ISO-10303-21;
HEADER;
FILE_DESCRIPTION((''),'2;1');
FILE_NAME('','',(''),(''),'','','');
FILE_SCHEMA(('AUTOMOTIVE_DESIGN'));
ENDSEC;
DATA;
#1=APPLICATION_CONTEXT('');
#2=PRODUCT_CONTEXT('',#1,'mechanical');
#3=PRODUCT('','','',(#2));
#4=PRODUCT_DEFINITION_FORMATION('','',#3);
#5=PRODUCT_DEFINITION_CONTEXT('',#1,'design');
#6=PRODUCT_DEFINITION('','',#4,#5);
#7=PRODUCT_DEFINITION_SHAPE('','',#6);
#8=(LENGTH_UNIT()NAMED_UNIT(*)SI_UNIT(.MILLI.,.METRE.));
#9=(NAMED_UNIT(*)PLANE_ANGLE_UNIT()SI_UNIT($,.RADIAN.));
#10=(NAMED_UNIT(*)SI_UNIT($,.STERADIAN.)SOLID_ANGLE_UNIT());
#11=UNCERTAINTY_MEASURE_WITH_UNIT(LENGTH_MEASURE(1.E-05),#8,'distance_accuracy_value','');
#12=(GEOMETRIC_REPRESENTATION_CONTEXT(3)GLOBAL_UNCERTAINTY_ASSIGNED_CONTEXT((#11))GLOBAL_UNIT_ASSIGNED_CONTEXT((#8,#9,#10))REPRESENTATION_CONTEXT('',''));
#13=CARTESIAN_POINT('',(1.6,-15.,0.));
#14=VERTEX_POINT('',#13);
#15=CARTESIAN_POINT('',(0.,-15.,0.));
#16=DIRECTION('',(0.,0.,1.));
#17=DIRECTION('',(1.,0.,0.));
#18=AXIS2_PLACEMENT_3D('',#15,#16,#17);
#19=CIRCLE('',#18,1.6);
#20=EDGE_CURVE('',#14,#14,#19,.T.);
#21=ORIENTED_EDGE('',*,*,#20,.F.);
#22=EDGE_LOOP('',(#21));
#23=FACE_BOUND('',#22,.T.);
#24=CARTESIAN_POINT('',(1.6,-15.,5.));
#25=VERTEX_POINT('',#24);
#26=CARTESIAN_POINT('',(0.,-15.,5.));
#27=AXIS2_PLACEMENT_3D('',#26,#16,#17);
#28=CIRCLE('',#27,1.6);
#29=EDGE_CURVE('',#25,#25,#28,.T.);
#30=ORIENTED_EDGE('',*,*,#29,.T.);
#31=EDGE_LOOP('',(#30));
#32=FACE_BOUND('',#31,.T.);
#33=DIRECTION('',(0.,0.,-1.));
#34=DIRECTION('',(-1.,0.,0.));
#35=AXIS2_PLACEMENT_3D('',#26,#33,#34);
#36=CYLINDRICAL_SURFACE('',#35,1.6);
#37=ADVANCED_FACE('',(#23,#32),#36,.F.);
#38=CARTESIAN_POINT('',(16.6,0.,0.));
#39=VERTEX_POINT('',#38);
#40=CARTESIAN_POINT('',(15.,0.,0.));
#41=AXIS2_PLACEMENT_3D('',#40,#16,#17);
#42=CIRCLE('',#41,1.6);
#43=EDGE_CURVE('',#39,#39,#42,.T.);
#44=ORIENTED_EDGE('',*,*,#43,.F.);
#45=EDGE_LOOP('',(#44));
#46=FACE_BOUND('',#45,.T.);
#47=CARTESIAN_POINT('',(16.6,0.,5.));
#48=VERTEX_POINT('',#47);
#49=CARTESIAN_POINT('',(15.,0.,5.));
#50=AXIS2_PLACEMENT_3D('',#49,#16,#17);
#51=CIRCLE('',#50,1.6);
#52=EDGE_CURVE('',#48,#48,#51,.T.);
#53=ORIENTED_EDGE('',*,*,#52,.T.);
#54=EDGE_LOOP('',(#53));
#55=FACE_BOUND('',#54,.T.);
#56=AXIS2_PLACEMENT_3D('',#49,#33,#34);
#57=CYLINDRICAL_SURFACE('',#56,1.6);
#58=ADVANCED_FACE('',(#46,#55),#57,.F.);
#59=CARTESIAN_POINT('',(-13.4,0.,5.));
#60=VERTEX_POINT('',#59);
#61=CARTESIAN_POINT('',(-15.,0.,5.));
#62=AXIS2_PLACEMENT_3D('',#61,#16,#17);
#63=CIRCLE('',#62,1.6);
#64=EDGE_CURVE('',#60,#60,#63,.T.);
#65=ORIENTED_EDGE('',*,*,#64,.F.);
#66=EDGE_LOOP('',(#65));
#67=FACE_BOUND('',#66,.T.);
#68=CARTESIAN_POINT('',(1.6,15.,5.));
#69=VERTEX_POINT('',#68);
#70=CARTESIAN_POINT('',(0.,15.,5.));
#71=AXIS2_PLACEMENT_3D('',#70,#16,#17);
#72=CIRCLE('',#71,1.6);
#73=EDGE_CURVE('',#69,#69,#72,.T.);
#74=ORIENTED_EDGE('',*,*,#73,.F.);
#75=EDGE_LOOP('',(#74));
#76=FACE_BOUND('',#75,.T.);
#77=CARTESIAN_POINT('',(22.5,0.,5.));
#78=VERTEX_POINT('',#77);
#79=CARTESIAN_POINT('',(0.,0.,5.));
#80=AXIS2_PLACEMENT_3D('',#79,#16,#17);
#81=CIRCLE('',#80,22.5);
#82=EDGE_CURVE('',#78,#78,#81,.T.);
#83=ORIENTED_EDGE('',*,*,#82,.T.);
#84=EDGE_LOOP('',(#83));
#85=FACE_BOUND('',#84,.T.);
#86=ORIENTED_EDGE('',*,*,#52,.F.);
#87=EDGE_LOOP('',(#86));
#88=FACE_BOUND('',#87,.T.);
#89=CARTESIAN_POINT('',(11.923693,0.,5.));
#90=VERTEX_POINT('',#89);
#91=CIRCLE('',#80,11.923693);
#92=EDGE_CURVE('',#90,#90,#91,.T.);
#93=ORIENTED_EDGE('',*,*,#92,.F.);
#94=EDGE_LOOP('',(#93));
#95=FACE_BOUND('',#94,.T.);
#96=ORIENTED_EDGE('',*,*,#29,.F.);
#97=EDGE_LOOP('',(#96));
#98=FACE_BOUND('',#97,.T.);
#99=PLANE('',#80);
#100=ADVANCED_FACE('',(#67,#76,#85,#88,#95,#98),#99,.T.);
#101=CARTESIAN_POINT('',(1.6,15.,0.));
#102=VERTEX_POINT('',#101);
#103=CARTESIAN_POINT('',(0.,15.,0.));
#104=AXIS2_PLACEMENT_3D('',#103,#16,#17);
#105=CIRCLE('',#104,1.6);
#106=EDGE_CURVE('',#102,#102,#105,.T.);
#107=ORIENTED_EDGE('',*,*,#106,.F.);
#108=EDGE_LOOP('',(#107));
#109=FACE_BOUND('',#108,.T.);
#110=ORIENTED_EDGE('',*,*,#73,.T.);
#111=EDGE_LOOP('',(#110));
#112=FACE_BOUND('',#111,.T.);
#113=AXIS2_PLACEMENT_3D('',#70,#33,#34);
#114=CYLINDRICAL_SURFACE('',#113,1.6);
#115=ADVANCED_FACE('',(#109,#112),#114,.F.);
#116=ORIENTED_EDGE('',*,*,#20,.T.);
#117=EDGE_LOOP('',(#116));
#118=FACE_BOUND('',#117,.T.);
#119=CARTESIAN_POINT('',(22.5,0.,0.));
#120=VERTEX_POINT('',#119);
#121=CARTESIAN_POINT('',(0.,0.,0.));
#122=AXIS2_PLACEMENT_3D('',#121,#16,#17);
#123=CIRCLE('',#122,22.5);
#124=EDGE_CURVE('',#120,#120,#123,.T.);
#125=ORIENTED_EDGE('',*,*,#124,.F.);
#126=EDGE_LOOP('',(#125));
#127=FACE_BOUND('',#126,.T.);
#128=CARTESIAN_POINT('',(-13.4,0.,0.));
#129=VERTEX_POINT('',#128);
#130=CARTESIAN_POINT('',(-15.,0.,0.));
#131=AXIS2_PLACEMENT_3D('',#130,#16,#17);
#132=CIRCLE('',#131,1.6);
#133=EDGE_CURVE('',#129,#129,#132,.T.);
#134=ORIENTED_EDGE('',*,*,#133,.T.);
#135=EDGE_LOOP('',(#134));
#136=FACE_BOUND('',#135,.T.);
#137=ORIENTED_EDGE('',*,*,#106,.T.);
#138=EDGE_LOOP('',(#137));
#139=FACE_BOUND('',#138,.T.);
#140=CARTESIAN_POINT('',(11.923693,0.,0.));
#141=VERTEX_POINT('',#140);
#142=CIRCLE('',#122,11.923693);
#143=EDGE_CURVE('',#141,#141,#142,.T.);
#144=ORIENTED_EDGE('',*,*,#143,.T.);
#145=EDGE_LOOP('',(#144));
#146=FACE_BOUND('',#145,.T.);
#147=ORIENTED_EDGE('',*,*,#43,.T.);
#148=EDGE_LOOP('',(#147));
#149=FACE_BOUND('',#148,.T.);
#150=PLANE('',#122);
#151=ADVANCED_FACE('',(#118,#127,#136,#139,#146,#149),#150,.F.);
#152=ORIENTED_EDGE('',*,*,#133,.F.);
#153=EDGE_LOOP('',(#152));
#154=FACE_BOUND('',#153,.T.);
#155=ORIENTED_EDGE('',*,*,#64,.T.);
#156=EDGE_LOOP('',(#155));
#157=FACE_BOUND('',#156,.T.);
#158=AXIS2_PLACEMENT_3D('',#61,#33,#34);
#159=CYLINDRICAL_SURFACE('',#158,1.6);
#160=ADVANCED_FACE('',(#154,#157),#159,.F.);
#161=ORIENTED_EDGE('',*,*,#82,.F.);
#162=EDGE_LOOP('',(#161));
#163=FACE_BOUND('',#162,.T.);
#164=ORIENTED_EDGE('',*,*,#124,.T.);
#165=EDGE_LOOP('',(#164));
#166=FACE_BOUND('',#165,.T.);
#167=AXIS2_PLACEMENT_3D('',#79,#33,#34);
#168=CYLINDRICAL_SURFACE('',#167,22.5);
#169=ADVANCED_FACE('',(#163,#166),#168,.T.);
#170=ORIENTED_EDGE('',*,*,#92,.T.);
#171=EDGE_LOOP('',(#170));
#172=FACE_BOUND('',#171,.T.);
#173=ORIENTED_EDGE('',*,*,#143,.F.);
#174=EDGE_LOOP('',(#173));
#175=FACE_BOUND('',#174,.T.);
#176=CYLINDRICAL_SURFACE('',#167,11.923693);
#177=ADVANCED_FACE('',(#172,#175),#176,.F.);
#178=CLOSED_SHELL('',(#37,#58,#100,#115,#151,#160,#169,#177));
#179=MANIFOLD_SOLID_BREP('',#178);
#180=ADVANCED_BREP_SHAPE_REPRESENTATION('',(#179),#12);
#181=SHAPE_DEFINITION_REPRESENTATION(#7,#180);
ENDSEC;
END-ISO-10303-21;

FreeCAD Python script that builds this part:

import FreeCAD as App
import Part
import Sketcher

V = App.Vector
Q = App.Units.Quantity

doc = App.newDocument("Part")
params = doc.addObject("Spreadsheet::Sheet", "Params")
for row, (alias, value) in enumerate([
    ("sketch1_diameter", "45 mm"),
    ("sketch1_diameter2", "3.2 mm"),
    ("pad1_length", "5 mm"),
], start=1):
    params.set(f"A{row}", alias)
    params.set(f"B{row}", "=" + value)
    params.setAlias(f"B{row}", alias)

body = doc.addObject("PartDesign::Body", "Body")

# Sketch on XY plane
sketch1 = body.newObject("Sketcher::SketchObject", "Sketch")
sketch1.AttachmentSupport = (doc.getObject("XY_Plane"), [""])
sketch1.MapMode = "FlatFace"
sketch1.addGeometry([
    Part.Circle(V(0, 0, 0), V(0, 0, 1), 22.5),  # 0
    Part.Circle(V(0, -15, 0), V(0, 0, 1), 1.6),  # 1
    Part.Circle(V(-15, 0, 0), V(0, 0, 1), 1.6),  # 2
    Part.Circle(V(0, 15, 0), V(0, 0, 1), 1.6),  # 3
    Part.Circle(V(0, 0, 0), V(0, 0, 1), 11.923693),  # 4
    Part.Circle(V(15, 0, 0), V(0, 0, 1), 1.6),  # 5
], False)
sketch1.addConstraint([
    Sketcher.Constraint("Coincident", 0, 3, -1, 1),
    Sketcher.Constraint("Coincident", 4, 3, -1, 1),
    Sketcher.Constraint("Equal", 1, 2),
    Sketcher.Constraint("Equal", 2, 3),
    Sketcher.Constraint("Equal", 3, 5),
    Sketcher.Constraint("Symmetric", 1, 3, 3, 3, -1, 1),
    Sketcher.Constraint("Symmetric", 2, 3, 5, 3, -1, 1),
    Sketcher.Constraint("PointOnObject", 1, 3, -2),
    Sketcher.Constraint("PointOnObject", 2, 3, -1),
    Sketcher.Constraint("Diameter", 0, Q("45 mm")),
    Sketcher.Constraint("Diameter", 1, Q("3.2 mm")),
    Sketcher.Constraint("DistanceY", 1, 3, -1, 1, Q("15 mm")),
    Sketcher.Constraint("DistanceX", 2, 3, -1, 1, Q("15 mm")),
    Sketcher.Constraint("Diameter", 4, Q("23.847385 mm")),
])
sketch1.setExpression("Constraints[9]", "Params.sketch1_diameter")
sketch1.setExpression("Constraints[10]", "Params.sketch1_diameter2")
pad1 = body.newObject("PartDesign::Pad", "Pad")
pad1.Profile = sketch1
pad1.setExpression("Length", "Params.pad1_length")

doc.recompute()
